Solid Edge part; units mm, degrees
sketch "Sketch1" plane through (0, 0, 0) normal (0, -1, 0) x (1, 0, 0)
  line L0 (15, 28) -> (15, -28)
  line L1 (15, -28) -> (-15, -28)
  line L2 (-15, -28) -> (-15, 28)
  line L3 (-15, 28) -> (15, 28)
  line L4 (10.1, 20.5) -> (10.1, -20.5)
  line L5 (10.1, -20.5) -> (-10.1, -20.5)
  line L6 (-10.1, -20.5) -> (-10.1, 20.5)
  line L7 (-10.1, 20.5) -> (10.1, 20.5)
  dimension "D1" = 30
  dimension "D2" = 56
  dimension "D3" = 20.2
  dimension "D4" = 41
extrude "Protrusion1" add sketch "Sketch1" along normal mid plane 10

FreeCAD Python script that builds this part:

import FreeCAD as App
import Part
import Sketcher
from FreeCAD import Vector
Q = App.Units.Quantity


def add_polygon(sketch, points):
    """Adds a closed chain of lines whose ends are joined by coincident constraints."""
    first, n = sketch.GeometryCount, len(points)
    for a, b in zip(points, points[1:] + points[:1]):
        sketch.addGeometry(Part.LineSegment(App.Vector(*a, 0), App.Vector(*b, 0)), False)
    for i in range(n):
        sketch.addConstraint(Sketcher.Constraint("Coincident", first + i, 2, first + (i + 1) % n, 1))

doc = App.newDocument("Part")
body = doc.addObject("PartDesign::Body", "Body")

sketch1 = body.newObject("Sketcher::SketchObject", "Sketch")
sketch1.AttachmentSupport = (doc.getObject("XZ_Plane"), [""])
sketch1.MapMode = "FlatFace"
add_polygon(sketch1, [(15, -28), (15, 28), (-15, 28), (-15, -28)])
add_polygon(sketch1, [(-10, 20), (10, 20), (10, -20), (-10, -20)])
sketch1.addConstraint([
    Sketcher.Constraint("Vertical", 0),
    Sketcher.Constraint("Horizontal", 1),
    Sketcher.Constraint("Vertical", 2),
    Sketcher.Constraint("Horizontal", 3),
    Sketcher.Constraint("Horizontal", 4),
    Sketcher.Constraint("Vertical", 5),
    Sketcher.Constraint("Horizontal", 6),
    Sketcher.Constraint("Vertical", 7),
    Sketcher.Constraint("Symmetric", 0, 2, 2, 2, -1, 1),
    Sketcher.Constraint("Symmetric", 4, 2, 6, 2, -1, 1),
    Sketcher.Constraint("DistanceX", 1, 2, 1, 1, Q("30 mm")),
    Sketcher.Constraint("DistanceY", 0, 1, 0, 2, Q("56 mm")),
    Sketcher.Constraint("DistanceY", 5, 2, 5, 1, Q("41 mm")),
    Sketcher.Constraint("DistanceX", 4, 1, 4, 2, Q("20.2 mm")),
])
pad1 = body.newObject("PartDesign::Pad", "Pad")
pad1.Profile = sketch1
pad1.Length = 10
pad1.Midplane = True

doc.recompute()
